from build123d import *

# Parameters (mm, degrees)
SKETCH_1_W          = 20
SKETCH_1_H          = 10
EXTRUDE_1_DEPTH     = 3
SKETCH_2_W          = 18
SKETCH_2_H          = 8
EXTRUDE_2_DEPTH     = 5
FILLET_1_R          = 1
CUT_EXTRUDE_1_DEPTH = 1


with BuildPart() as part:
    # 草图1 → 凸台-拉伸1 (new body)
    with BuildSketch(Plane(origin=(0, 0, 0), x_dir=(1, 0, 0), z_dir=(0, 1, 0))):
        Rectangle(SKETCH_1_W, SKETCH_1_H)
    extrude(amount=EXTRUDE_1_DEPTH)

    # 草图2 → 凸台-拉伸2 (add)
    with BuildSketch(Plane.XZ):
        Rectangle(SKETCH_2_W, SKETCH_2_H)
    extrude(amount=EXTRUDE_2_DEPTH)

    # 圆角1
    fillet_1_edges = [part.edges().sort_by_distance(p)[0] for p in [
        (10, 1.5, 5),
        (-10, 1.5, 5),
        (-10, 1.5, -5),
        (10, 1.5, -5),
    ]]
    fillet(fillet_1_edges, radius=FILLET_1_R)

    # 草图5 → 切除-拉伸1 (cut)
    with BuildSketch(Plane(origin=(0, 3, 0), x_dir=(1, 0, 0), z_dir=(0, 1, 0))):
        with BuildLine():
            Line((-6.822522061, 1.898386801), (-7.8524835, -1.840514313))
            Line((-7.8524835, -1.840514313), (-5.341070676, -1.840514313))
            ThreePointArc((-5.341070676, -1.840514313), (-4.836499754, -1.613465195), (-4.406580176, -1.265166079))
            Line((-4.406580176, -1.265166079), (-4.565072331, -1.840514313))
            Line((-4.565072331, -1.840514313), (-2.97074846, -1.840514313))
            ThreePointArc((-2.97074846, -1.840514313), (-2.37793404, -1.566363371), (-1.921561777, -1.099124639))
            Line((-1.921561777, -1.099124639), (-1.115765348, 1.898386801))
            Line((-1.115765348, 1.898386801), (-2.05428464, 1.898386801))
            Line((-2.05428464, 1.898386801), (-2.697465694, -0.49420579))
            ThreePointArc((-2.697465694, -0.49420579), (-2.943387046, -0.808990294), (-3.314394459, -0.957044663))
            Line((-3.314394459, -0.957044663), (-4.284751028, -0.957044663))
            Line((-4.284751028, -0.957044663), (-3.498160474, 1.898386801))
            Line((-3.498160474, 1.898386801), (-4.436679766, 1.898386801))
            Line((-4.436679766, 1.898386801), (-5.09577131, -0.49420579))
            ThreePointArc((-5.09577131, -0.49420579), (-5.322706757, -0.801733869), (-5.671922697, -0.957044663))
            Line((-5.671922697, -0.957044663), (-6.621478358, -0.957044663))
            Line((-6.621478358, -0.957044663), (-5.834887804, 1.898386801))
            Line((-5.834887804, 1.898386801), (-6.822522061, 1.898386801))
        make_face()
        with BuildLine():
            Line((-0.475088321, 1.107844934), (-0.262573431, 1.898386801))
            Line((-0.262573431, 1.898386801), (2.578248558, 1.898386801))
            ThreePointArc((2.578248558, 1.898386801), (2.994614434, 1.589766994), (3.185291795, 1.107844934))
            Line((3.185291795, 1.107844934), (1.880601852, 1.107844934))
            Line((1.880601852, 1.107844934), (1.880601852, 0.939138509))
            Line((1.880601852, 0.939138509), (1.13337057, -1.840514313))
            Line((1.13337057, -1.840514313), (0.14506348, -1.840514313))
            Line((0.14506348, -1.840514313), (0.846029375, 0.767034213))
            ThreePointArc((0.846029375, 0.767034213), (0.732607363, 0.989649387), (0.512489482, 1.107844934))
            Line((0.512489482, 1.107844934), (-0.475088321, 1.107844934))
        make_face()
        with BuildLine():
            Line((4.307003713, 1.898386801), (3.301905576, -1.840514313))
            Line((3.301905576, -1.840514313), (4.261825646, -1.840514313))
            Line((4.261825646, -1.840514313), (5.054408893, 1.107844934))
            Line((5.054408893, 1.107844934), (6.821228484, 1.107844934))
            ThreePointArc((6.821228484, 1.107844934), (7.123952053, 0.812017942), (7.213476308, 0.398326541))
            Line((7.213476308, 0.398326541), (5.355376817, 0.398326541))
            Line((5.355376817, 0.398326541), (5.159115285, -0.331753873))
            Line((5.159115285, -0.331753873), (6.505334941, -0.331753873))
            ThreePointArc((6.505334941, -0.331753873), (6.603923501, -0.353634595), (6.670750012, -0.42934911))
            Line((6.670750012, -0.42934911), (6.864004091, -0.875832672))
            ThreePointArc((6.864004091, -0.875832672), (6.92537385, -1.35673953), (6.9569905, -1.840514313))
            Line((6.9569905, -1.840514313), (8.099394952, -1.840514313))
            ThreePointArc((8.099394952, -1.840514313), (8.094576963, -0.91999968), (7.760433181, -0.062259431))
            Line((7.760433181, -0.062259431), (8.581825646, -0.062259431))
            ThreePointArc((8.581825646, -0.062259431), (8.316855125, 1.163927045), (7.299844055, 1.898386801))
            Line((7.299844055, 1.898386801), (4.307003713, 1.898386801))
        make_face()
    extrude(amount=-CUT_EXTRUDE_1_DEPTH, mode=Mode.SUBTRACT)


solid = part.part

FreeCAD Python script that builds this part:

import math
import FreeCAD as App
import Part
import Sketcher

V = App.Vector


def edges_at(feature, points):
    """Names of the edges that pass closest to the given points."""
    edges = feature.Shape.Edges
    near = lambda p: min(range(len(edges)), key=lambda i: edges[i].distToShape(Part.Vertex(*p))[0])
    return sorted({f"Edge{near(p) + 1}" for p in points})

doc = App.newDocument("Part")
body = doc.addObject("PartDesign::Body", "Body")

# Sketch on XZ plane
sketch1 = body.newObject("Sketcher::SketchObject", "Sketch")
sketch1.AttachmentSupport = (doc.getObject("XZ_Plane"), [""])
sketch1.MapMode = "FlatFace"
sketch1.addGeometry([
    Part.LineSegment(V(-10, -5, 0), V(-10, 5, 0)),
    Part.LineSegment(V(-10, 5, 0), V(10, 5, 0)),
    Part.LineSegment(V(10, 5, 0), V(10, -5, 0)),
    Part.LineSegment(V(10, -5, 0), V(-10, -5, 0)),
], False)
sketch1.addConstraint([
    Sketcher.Constraint("Coincident", 0, 2, 1, 1),
    Sketcher.Constraint("Coincident", 1, 2, 2, 1),
    Sketcher.Constraint("Coincident", 2, 2, 3, 1),
    Sketcher.Constraint("Coincident", 3, 2, 0, 1),
    Sketcher.Constraint("Vertical", 0),
    Sketcher.Constraint("Horizontal", 1),
    Sketcher.Constraint("Vertical", 2),
    Sketcher.Constraint("Horizontal", 3),
    Sketcher.Constraint("Symmetric", 0, 2, 2, 2, -1, 1),
    Sketcher.Constraint("DistanceX", 1, 1, 1, 2, 20.0),
    Sketcher.Constraint("DistanceY", 0, 1, 0, 2, 10.0),
])
pad1 = body.newObject("PartDesign::Pad", "Pad")
pad1.Profile = sketch1
pad1.Length = 3
pad1.Reversed = True

# Sketch on XZ plane
sketch2 = body.newObject("Sketcher::SketchObject", "Sketch001")
sketch2.AttachmentSupport = (doc.getObject("XZ_Plane"), [""])
sketch2.MapMode = "FlatFace"
sketch2.addGeometry([
    Part.LineSegment(V(-9, 4, 0), V(-9, -4, 0)),
    Part.LineSegment(V(-9, -4, 0), V(9, -4, 0)),
    Part.LineSegment(V(9, -4, 0), V(9, 4, 0)),
    Part.LineSegment(V(9, 4, 0), V(-9, 4, 0)),
], False)
sketch2.addConstraint([
    Sketcher.Constraint("Coincident", 0, 2, 1, 1),
    Sketcher.Constraint("Coincident", 1, 2, 2, 1),
    Sketcher.Constraint("Coincident", 2, 2, 3, 1),
    Sketcher.Constraint("Coincident", 3, 2, 0, 1),
    Sketcher.Constraint("Vertical", 0),
    Sketcher.Constraint("Horizontal", 1),
    Sketcher.Constraint("Vertical", 2),
    Sketcher.Constraint("Horizontal", 3),
    Sketcher.Constraint("Symmetric", 0, 2, 2, 2, -1, 1),
    Sketcher.Constraint("DistanceX", 1, 1, 1, 2, 18.0),
    Sketcher.Constraint("DistanceY", 0, 2, 0, 1, 8.0),
])
pad2 = body.newObject("PartDesign::Pad", "Pad001")
pad2.Profile = sketch2
pad2.Length = 5
doc.recompute()

fillet = body.newObject("PartDesign::Fillet", "Fillet")
fillet.Base = (pad2, edges_at(pad2, [
    (10, 1.5, 5),
    (-10, 1.5, 5),
    (-10, 1.5, -5),
    (10, 1.5, -5),
]))
fillet.Radius = 1

# Sketch on XZ plane
sketch3 = body.newObject("Sketcher::SketchObject", "Sketch002")
sketch3.AttachmentSupport = (doc.getObject("XZ_Plane"), [""])
sketch3.MapMode = "FlatFace"
sketch3.AttachmentOffset = App.Placement(V(0, 0, -3), App.Rotation())
sketch3.addGeometry([
    Part.LineSegment(V(-6.822522, -1.898387, 0), V(-7.852483, 1.840514, 0)),  # 0
    Part.LineSegment(V(-7.852483, 1.840514, 0), V(-5.341071, 1.840514, 0)),  # 1
    Part.ArcOfCircle(Part.Circle(V(-5.963735, -0.217409, 0), V(0, 0, 1), 2.15006), math.radians(43.59454), math.radians(73.165808)),  # 2
    Part.LineSegment(V(-4.40658, 1.265166, 0), V(-4.565072, 1.840514, 0)),  # 3
    Part.LineSegment(V(-4.565072, 1.840514, 0), V(-2.970748, 1.840514, 0)),  # 4
    Part.ArcOfCircle(Part.Circle(V(-3.419172, 0.092842, 0), V(0, 0, 1), 1.804284), math.radians(33.898149), math.radians(75.609293)),  # 5
    Part.LineSegment(V(-1.921562, 1.099125, 0), V(-1.115765, -1.898387, 0)),  # 6
    Part.LineSegment(V(-1.115765, -1.898387, 0), V(-2.054285, -1.898387, 0)),  # 7
    Part.LineSegment(V(-2.054285, -1.898387, 0), V(-2.697466, 0.494206, 0)),  # 8
    Part.ArcOfCircle(Part.Circle(V(-3.402803, 0.196623, 0), V(0, 0, 1), 0.765543), math.radians(22.874906), math.radians(83.368384)),  # 9
    Part.LineSegment(V(-3.314394, 0.957045, 0), V(-4.284751, 0.957045, 0)),  # 10
    Part.LineSegment(V(-4.284751, 0.957045, 0), V(-3.49816, -1.898387, 0)),  # 11
    Part.LineSegment(V(-3.49816, -1.898387, 0), V(-4.43668, -1.898387, 0)),  # 12
    Part.LineSegment(V(-4.43668, -1.898387, 0), V(-5.095771, 0.494206, 0)),  # 13
    Part.ArcOfCircle(Part.Circle(V(-5.791245, 0.218488, 0), V(0, 0, 1), 0.748134), math.radians(21.625668), math.radians(80.822515)),  # 14
    Part.LineSegment(V(-5.671923, 0.957045, 0), V(-6.621478, 0.957045, 0)),  # 15
    Part.LineSegment(V(-6.621478, 0.957045, 0), V(-5.834888, -1.898387, 0)),  # 16
    Part.LineSegment(V(-5.834888, -1.898387, 0), V(-6.822522, -1.898387, 0)),  # 17
    Part.LineSegment(V(-0.262573, -1.898387, 0), V(-0.475088, -1.107845, 0)),  # 18
    Part.LineSegment(V(-0.475088, -1.107845, 0), V(0.512489, -1.107845, 0)),  # 19
    Part.ArcOfCircle(Part.Circle(V(0.433777, -0.697194, 0), V(0, 0, 1), 0.418127), math.radians(-79.149274), math.radians(-9.615251)),  # 20
    Part.LineSegment(V(0.846029, -0.767034, 0), V(0.145063, 1.840514, 0)),  # 21
    Part.LineSegment(V(0.145063, 1.840514, 0), V(1.133371, 1.840514, 0)),  # 22
    Part.LineSegment(V(1.133371, 1.840514, 0), V(1.880602, -0.939139, 0)),  # 23
    Part.LineSegment(V(1.880602, -0.939139, 0), V(1.880602, -1.107845, 0)),  # 24
    Part.LineSegment(V(1.880602, -1.107845, 0), V(3.185292, -1.107845, 0)),  # 25
    Part.ArcOfCircle(Part.Circle(V(2.245915, -1.014854, 0), V(0, 0, 1), 0.943969), math.radians(-69.386615), math.radians(-5.653438)),  # 26
    Part.LineSegment(V(2.578249, -1.898387, 0), V(-0.262573, -1.898387, 0)),  # 27
    Part.LineSegment(V(4.307004, -1.898387, 0), V(3.301906, 1.840514, 0)),  # 28
    Part.LineSegment(V(3.301906, 1.840514, 0), V(4.261826, 1.840514, 0)),  # 29
    Part.LineSegment(V(4.261826, 1.840514, 0), V(5.054409, -1.107845, 0)),  # 30
    Part.LineSegment(V(5.054409, -1.107845, 0), V(6.821228, -1.107845, 0)),  # 31
    Part.ArcOfCircle(Part.Circle(V(6.48034, -0.456206, 0), V(0, 0, 1), 0.735417), math.radians(-62.384851), math.radians(4.513993)),  # 32
    Part.LineSegment(V(7.213476, -0.398327, 0), V(5.355377, -0.398327, 0)),  # 33
    Part.LineSegment(V(5.355377, -0.398327, 0), V(5.159115, 0.331754, 0)),  # 34
    Part.LineSegment(V(5.159115, 0.331754, 0), V(6.505335, 0.331754, 0)),  # 35
    Part.ArcOfCircle(Part.Circle(V(6.521013, 0.494161, 0), V(0, 0, 1), 0.163162), math.radians(-95.513924), math.radians(-23.404689)),  # 36
    Part.LineSegment(V(6.67075, 0.429349, 0), V(6.864004, 0.875833, 0)),  # 37
    Part.ArcOfCircle(Part.Circle(V(-0.901505, 2.111178, 0), V(0, 0, 1), 7.863155), math.radians(-9.038935), math.radians(-1.972615)),  # 38
    Part.LineSegment(V(6.95699, 1.840514, 0), V(8.099395, 1.840514, 0)),  # 39
    Part.ArcOfCircle(Part.Circle(V(5.611742, 1.393265, 0), V(0, 0, 1), 2.527538), math.radians(-31.776122), math.radians(10.192195)),  # 40
    Part.LineSegment(V(7.760433, 0.062259, 0), V(8.581826, 0.062259, 0)),  # 41
    Part.ArcOfCircle(Part.Circle(V(6.850944, -0.205431, 0), V(0, 0, 1), 1.751459), math.radians(-75.149333), math.radians(8.791467)),  # 42
    Part.LineSegment(V(7.299844, -1.898387, 0), V(4.307004, -1.898387, 0)),  # 43
], False)
sketch3.addConstraint([
    Sketcher.Constraint("Coincident", 0, 2, 1, 1),
    Sketcher.Constraint("Coincident", 1, 2, 2, 2),
    Sketcher.Constraint("Coincident", 2, 1, 3, 1),
    Sketcher.Constraint("Coincident", 3, 2, 4, 1),
    Sketcher.Constraint("Coincident", 4, 2, 5, 2),
    Sketcher.Constraint("Coincident", 5, 1, 6, 1),
    Sketcher.Constraint("Coincident", 6, 2, 7, 1),
    Sketcher.Constraint("Coincident", 7, 2, 8, 1),
    Sketcher.Constraint("Coincident", 8, 2, 9, 1),
    Sketcher.Constraint("Coincident", 9, 2, 10, 1),
    Sketcher.Constraint("Coincident", 10, 2, 11, 1),
    Sketcher.Constraint("Coincident", 11, 2, 12, 1),
    Sketcher.Constraint("Coincident", 12, 2, 13, 1),
    Sketcher.Constraint("Coincident", 13, 2, 14, 1),
    Sketcher.Constraint("Coincident", 14, 2, 15, 1),
    Sketcher.Constraint("Coincident", 15, 2, 16, 1),
    Sketcher.Constraint("Coincident", 16, 2, 17, 1),
    Sketcher.Constraint("Coincident", 17, 2, 0, 1),
    Sketcher.Constraint("Coincident", 18, 2, 19, 1),
    Sketcher.Constraint("Coincident", 19, 2, 20, 1),
    Sketcher.Constraint("Coincident", 20, 2, 21, 1),
    Sketcher.Constraint("Coincident", 21, 2, 22, 1),
    Sketcher.Constraint("Coincident", 22, 2, 23, 1),
    Sketcher.Constraint("Coincident", 23, 2, 24, 1),
    Sketcher.Constraint("Coincident", 24, 2, 25, 1),
    Sketcher.Constraint("Coincident", 25, 2, 26, 2),
    Sketcher.Constraint("Coincident", 26, 1, 27, 1),
    Sketcher.Constraint("Coincident", 27, 2, 18, 1),
    Sketcher.Constraint("Coincident", 28, 2, 29, 1),
    Sketcher.Constraint("Coincident", 29, 2, 30, 1),
    Sketcher.Constraint("Coincident", 30, 2, 31, 1),
    Sketcher.Constraint("Coincident", 31, 2, 32, 1),
    Sketcher.Constraint("Coincident", 32, 2, 33, 1),
    Sketcher.Constraint("Coincident", 33, 2, 34, 1),
    Sketcher.Constraint("Coincident", 34, 2, 35, 1),
    Sketcher.Constraint("Coincident", 35, 2, 36, 1),
    Sketcher.Constraint("Tangent", 36, 2, 37, 1),
    Sketcher.Constraint("Coincident", 37, 2, 38, 1),
    Sketcher.Constraint("Coincident", 38, 2, 39, 1),
    Sketcher.Constraint("Coincident", 39, 2, 40, 2),
    Sketcher.Constraint("Coincident", 40, 1, 41, 1),
    Sketcher.Constraint("Coincident", 41, 2, 42, 2),
    Sketcher.Constraint("Coincident", 42, 1, 43, 1),
    Sketcher.Constraint("Coincident", 43, 2, 28, 1),
    Sketcher.Constraint("Horizontal", 1),
    Sketcher.Constraint("Horizontal", 4),
    Sketcher.Constraint("Horizontal", 7),
    Sketcher.Constraint("Horizontal", 10),
    Sketcher.Constraint("Horizontal", 12),
    Sketcher.Constraint("Horizontal", 15),
    Sketcher.Constraint("Horizontal", 17),
    Sketcher.Constraint("Horizontal", 19),
    Sketcher.Constraint("Horizontal", 22),
    Sketcher.Constraint("Vertical", 24),
    Sketcher.Constraint("Horizontal", 25),
    Sketcher.Constraint("Horizontal", 27),
    Sketcher.Constraint("Horizontal", 29),
    Sketcher.Constraint("Horizontal", 31),
    Sketcher.Constraint("Horizontal", 33),
    Sketcher.Constraint("Horizontal", 35),
    Sketcher.Constraint("Horizontal", 39),
    Sketcher.Constraint("Horizontal", 41),
    Sketcher.Constraint("Horizontal", 43),
    Sketcher.Constraint("Parallel", 0, 3),
    Sketcher.Constraint("Parallel", 6, 8),
    Sketcher.Constraint("Parallel", 3, 11),
    Sketcher.Constraint("Parallel", 11, 13),
    Sketcher.Constraint("Parallel", 13, 16),
    Sketcher.Constraint("Parallel", 8, 18),
    Sketcher.Constraint("Parallel", 18, 21),
    Sketcher.Constraint("Parallel", 21, 23),
    Sketcher.Constraint("Parallel", 23, 28),
    Sketcher.Constraint("Parallel", 28, 30),
    Sketcher.Constraint("Parallel", 30, 34),
    Sketcher.Constraint("Horizontal", 1, 2, 3, 2),
    Sketcher.Constraint("Horizontal", 7, 2, 11, 2),
    Sketcher.Constraint("Horizontal", 8, 2, 13, 2),
    Sketcher.Constraint("Horizontal", 10, 2, 14, 2),
    Sketcher.Constraint("Horizontal", 12, 2, 16, 2),
    Sketcher.Constraint("Horizontal", 4, 2, 21, 2),
    Sketcher.Constraint("Horizontal", 19, 2, 24, 2),
    Sketcher.Constraint("Horizontal", 17, 2, 26, 1),
    Sketcher.Constraint("Horizontal", 22, 2, 28, 2),
    Sketcher.Constraint("Horizontal", 25, 2, 30, 2),
    Sketcher.Constraint("Horizontal", 29, 2, 38, 2),
    Sketcher.Constraint("Horizontal", 27, 2, 42, 1),
    Sketcher.Constraint("Equal", 7, 12),
    Sketcher.Constraint("Radius", 2, 2.15006),
    Sketcher.Constraint("Radius", 26, 0.943969),
    Sketcher.Constraint("Radius", 36, 0.163162),
    Sketcher.Constraint("Radius", 42, 1.751459),
    Sketcher.Constraint("Distance", 34, 0.756),
    Sketcher.Constraint("DistanceX", 33, 2, 33, 1, 1.858099),
    Sketcher.Constraint("Radius", 5, 1.804284),
    Sketcher.Constraint("Radius", 9, 0.765543),
    Sketcher.Constraint("Radius", 14, 0.748134),
    Sketcher.Constraint("Radius", 20, 0.418127),
    Sketcher.Constraint("Radius", 32, 0.735417),
    Sketcher.Constraint("Radius", 38, 7.863155),
    Sketcher.Constraint("Radius", 40, 2.527538),
    Sketcher.Constraint("DistanceX", 1, 2, 3, 2, 0.775998),
    Sketcher.Constraint("DistanceX", 7, 2, 7, 1, 0.938519),
    Sketcher.Constraint("DistanceX", 25, 1, 25, 2, 1.30469),
    Sketcher.Constraint("DistanceX", 27, 2, 27, 1, 2.840822),
    Sketcher.Constraint("DistanceX", 29, 1, 29, 2, 0.95992),
    Sketcher.Constraint("DistanceX", 31, 1, 31, 2, 1.76682),
    Sketcher.Constraint("DistanceX", 35, 1, 35, 2, 1.34622),
    Sketcher.Constraint("DistanceX", 43, 2, 43, 1, 2.99284),
    Sketcher.Constraint("DistanceX", -1, 1, 23, 2, 1.880602),
    Sketcher.Constraint("DistanceX", 26, 3, 36, 3, 4.275098),
    Sketcher.Constraint("DistanceX", 9, 3, 38, 3, 2.501298),
    Sketcher.Constraint("DistanceX", 40, 3, 42, 3, 1.239202),
    Sketcher.Constraint("DistanceX", 1, 2, 5, 3, 1.921898),
    Sketcher.Constraint("DistanceY", 9, 3, 5, 1, 0.902501),
    Sketcher.Constraint("DistanceX", 1, 2, 13, 2, 0.245299),
    Sketcher.Constraint("DistanceY", 30, 2, 34, 2, 1.439599),
    Sketcher.Constraint("DistanceX", 35, 2, 40, 1, 1.255098),
    Sketcher.Constraint("DistanceX", 42, 3, 42, 1, 0.4489),
    Sketcher.Constraint("Distance", 0, 3.87817),
    Sketcher.Constraint("Distance", 3, 0.596779),
    Sketcher.Constraint("Distance", 6, 3.10393),
    Sketcher.Constraint("Distance", 28, 3.871641),
    Sketcher.Constraint("DistanceX", 1, 1, 1, 2, 2.511413),
    Sketcher.Constraint("DistanceX", 4, 1, 4, 2, 1.594324),
    Sketcher.Constraint("DistanceX", 10, 2, 10, 1, 0.970357),
    Sketcher.Constraint("DistanceX", 15, 2, 15, 1, 0.949556),
    Sketcher.Constraint("DistanceX", 17, 2, 17, 1, 0.987634),
    Sketcher.Constraint("DistanceX", 19, 1, 19, 2, 0.987578),
    Sketcher.Constraint("DistanceX", 22, 1, 22, 2, 0.988307),
    Sketcher.Constraint("DistanceX", 39, 1, 39, 2, 1.142404),
    Sketcher.Constraint("DistanceX", 41, 1, 41, 2, 0.821392),
    Sketcher.Constraint("DistanceY", 24, 2, 24, 1, 0.168706),
    Sketcher.Constraint("DistanceY", 2, 3, -1, 1, 0.217409),
    Sketcher.Constraint("DistanceX", -1, 1, 32, 3, 6.48034),
    Sketcher.Constraint("DistanceY", -1, 1, 36, 3, 0.494161),
    Sketcher.Constraint("DistanceY", -1, 1, 38, 3, 2.111178),
    Sketcher.Constraint("DistanceY", 42, 3, -1, 1, 0.205431),
    Sketcher.Constraint("DistanceX", 1, 2, -1, 1, 5.341071),
    Sketcher.Constraint("DistanceX", 10, 2, -1, 1, 4.284751),
    Sketcher.Constraint("DistanceX", 18, 2, -1, 1, 0.475088),
    Sketcher.Constraint("DistanceX", -1, 1, 20, 2, 0.846029),
    Sketcher.Constraint("DistanceX", -1, 1, 36, 2, 6.67075),
])
pocket1 = body.newObject("PartDesign::Pocket", "Pocket")
pocket1.Profile = sketch3
pocket1.Length = 1
pocket1.Reversed = True

doc.recompute()
